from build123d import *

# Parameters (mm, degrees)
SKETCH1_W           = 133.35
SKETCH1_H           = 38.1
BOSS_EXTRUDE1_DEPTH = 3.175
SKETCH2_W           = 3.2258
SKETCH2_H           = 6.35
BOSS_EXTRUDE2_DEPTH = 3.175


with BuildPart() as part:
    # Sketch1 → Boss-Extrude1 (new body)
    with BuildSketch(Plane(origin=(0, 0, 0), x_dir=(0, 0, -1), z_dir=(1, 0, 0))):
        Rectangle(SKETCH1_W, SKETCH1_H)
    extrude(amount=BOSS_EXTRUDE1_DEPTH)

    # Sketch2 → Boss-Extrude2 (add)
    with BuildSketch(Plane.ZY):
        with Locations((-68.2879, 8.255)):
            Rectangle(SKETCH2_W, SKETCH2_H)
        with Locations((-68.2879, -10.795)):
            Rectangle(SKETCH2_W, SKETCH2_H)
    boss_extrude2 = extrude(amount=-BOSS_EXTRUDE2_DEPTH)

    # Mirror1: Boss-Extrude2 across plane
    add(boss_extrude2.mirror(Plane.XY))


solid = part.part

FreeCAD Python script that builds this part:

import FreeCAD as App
import Part
import Sketcher
from FreeCAD import Vector
Q = App.Units.Quantity


def add_polygon(sketch, points):
    """Adds a closed chain of lines whose ends are joined by coincident constraints."""
    first, n = sketch.GeometryCount, len(points)
    for a, b in zip(points, points[1:] + points[:1]):
        sketch.addGeometry(Part.LineSegment(App.Vector(*a, 0), App.Vector(*b, 0)), False)
    for i in range(n):
        sketch.addConstraint(Sketcher.Constraint("Coincident", first + i, 2, first + (i + 1) % n, 1))

doc = App.newDocument("Part")
body = doc.addObject("PartDesign::Body", "Body")

# Sketch on YZ plane
sketch1 = body.newObject("Sketcher::SketchObject", "Sketch")
sketch1.AttachmentSupport = (doc.getObject("YZ_Plane"), [""])
sketch1.MapMode = "FlatFace"
add_polygon(sketch1, [(19.05, 66.675), (-19.05, 66.675), (-19.05, -66.675), (19.05, -66.675)])  # lines 0-3
sketch1.addConstraint([
    Sketcher.Constraint("Horizontal", 0),
    Sketcher.Constraint("Vertical", 1),
    Sketcher.Constraint("Horizontal", 2),
    Sketcher.Constraint("Vertical", 3),
    Sketcher.Constraint("Symmetric", 0, 2, 2, 2, -1, 1),
    Sketcher.Constraint("DistanceX", 0, 2, 0, 1, Q("1.5 in")),
    Sketcher.Constraint("DistanceY", 1, 2, 1, 1, Q("5.25 in")),
])
pad1 = body.newObject("PartDesign::Pad", "Pad")
pad1.Profile = sketch1
pad1.Length = Q("0.125 in")

# Sketch on YZ plane
sketch2 = body.newObject("Sketcher::SketchObject", "Sketch001")
sketch2.AttachmentSupport = (doc.getObject("YZ_Plane"), [""])
sketch2.MapMode = "FlatFace"
add_polygon(sketch2, [(11.43, -69.9008), (5.08, -69.9008), (5.08, -66.675), (11.43, -66.675)])  # lines 0-3
add_polygon(sketch2, [(-7.62, -69.9008), (-13.97, -69.9008), (-13.97, -66.675), (-7.62, -66.675)])  # lines 4-7
sketch2.addConstraint([
    Sketcher.Constraint("Horizontal", 0),
    Sketcher.Constraint("Vertical", 1),
    Sketcher.Constraint("Horizontal", 2),
    Sketcher.Constraint("Vertical", 3),
    Sketcher.Constraint("Horizontal", 4),
    Sketcher.Constraint("Vertical", 5),
    Sketcher.Constraint("Horizontal", 6),
    Sketcher.Constraint("Vertical", 7),
    Sketcher.Constraint("Horizontal", 3, 2, 4, 2),
    Sketcher.Constraint("Horizontal", 2, 2, 5, 2),
    Sketcher.Constraint("Equal", 2, 4),
    Sketcher.Constraint("DistanceX", 4, 2, 3, 2, Q("1 in")),
    Sketcher.Constraint("DistanceX", 0, 2, 0, 1, Q("0.25 in")),
    Sketcher.Constraint("DistanceX", -1, 1, 0, 2, Q("0.2 in")),
    Sketcher.Constraint("DistanceY", 1, 1, 1, 2, Q("0.127 in")),
    Sketcher.Constraint("DistanceY", 0, 2, -1, 1, Q("2.752 in")),
])
pad2 = body.newObject("PartDesign::Pad", "Pad001")
pad2.Profile = sketch2
pad2.Length = Q("0.125 in")
doc.recompute()

mirrored = body.newObject("PartDesign::Mirrored", "Mirrored")
mirrored.Originals = [pad2]
mirrored.MirrorPlane = (doc.getObject("XY_Plane"), [""])
body.Tip = mirrored

doc.recompute()
